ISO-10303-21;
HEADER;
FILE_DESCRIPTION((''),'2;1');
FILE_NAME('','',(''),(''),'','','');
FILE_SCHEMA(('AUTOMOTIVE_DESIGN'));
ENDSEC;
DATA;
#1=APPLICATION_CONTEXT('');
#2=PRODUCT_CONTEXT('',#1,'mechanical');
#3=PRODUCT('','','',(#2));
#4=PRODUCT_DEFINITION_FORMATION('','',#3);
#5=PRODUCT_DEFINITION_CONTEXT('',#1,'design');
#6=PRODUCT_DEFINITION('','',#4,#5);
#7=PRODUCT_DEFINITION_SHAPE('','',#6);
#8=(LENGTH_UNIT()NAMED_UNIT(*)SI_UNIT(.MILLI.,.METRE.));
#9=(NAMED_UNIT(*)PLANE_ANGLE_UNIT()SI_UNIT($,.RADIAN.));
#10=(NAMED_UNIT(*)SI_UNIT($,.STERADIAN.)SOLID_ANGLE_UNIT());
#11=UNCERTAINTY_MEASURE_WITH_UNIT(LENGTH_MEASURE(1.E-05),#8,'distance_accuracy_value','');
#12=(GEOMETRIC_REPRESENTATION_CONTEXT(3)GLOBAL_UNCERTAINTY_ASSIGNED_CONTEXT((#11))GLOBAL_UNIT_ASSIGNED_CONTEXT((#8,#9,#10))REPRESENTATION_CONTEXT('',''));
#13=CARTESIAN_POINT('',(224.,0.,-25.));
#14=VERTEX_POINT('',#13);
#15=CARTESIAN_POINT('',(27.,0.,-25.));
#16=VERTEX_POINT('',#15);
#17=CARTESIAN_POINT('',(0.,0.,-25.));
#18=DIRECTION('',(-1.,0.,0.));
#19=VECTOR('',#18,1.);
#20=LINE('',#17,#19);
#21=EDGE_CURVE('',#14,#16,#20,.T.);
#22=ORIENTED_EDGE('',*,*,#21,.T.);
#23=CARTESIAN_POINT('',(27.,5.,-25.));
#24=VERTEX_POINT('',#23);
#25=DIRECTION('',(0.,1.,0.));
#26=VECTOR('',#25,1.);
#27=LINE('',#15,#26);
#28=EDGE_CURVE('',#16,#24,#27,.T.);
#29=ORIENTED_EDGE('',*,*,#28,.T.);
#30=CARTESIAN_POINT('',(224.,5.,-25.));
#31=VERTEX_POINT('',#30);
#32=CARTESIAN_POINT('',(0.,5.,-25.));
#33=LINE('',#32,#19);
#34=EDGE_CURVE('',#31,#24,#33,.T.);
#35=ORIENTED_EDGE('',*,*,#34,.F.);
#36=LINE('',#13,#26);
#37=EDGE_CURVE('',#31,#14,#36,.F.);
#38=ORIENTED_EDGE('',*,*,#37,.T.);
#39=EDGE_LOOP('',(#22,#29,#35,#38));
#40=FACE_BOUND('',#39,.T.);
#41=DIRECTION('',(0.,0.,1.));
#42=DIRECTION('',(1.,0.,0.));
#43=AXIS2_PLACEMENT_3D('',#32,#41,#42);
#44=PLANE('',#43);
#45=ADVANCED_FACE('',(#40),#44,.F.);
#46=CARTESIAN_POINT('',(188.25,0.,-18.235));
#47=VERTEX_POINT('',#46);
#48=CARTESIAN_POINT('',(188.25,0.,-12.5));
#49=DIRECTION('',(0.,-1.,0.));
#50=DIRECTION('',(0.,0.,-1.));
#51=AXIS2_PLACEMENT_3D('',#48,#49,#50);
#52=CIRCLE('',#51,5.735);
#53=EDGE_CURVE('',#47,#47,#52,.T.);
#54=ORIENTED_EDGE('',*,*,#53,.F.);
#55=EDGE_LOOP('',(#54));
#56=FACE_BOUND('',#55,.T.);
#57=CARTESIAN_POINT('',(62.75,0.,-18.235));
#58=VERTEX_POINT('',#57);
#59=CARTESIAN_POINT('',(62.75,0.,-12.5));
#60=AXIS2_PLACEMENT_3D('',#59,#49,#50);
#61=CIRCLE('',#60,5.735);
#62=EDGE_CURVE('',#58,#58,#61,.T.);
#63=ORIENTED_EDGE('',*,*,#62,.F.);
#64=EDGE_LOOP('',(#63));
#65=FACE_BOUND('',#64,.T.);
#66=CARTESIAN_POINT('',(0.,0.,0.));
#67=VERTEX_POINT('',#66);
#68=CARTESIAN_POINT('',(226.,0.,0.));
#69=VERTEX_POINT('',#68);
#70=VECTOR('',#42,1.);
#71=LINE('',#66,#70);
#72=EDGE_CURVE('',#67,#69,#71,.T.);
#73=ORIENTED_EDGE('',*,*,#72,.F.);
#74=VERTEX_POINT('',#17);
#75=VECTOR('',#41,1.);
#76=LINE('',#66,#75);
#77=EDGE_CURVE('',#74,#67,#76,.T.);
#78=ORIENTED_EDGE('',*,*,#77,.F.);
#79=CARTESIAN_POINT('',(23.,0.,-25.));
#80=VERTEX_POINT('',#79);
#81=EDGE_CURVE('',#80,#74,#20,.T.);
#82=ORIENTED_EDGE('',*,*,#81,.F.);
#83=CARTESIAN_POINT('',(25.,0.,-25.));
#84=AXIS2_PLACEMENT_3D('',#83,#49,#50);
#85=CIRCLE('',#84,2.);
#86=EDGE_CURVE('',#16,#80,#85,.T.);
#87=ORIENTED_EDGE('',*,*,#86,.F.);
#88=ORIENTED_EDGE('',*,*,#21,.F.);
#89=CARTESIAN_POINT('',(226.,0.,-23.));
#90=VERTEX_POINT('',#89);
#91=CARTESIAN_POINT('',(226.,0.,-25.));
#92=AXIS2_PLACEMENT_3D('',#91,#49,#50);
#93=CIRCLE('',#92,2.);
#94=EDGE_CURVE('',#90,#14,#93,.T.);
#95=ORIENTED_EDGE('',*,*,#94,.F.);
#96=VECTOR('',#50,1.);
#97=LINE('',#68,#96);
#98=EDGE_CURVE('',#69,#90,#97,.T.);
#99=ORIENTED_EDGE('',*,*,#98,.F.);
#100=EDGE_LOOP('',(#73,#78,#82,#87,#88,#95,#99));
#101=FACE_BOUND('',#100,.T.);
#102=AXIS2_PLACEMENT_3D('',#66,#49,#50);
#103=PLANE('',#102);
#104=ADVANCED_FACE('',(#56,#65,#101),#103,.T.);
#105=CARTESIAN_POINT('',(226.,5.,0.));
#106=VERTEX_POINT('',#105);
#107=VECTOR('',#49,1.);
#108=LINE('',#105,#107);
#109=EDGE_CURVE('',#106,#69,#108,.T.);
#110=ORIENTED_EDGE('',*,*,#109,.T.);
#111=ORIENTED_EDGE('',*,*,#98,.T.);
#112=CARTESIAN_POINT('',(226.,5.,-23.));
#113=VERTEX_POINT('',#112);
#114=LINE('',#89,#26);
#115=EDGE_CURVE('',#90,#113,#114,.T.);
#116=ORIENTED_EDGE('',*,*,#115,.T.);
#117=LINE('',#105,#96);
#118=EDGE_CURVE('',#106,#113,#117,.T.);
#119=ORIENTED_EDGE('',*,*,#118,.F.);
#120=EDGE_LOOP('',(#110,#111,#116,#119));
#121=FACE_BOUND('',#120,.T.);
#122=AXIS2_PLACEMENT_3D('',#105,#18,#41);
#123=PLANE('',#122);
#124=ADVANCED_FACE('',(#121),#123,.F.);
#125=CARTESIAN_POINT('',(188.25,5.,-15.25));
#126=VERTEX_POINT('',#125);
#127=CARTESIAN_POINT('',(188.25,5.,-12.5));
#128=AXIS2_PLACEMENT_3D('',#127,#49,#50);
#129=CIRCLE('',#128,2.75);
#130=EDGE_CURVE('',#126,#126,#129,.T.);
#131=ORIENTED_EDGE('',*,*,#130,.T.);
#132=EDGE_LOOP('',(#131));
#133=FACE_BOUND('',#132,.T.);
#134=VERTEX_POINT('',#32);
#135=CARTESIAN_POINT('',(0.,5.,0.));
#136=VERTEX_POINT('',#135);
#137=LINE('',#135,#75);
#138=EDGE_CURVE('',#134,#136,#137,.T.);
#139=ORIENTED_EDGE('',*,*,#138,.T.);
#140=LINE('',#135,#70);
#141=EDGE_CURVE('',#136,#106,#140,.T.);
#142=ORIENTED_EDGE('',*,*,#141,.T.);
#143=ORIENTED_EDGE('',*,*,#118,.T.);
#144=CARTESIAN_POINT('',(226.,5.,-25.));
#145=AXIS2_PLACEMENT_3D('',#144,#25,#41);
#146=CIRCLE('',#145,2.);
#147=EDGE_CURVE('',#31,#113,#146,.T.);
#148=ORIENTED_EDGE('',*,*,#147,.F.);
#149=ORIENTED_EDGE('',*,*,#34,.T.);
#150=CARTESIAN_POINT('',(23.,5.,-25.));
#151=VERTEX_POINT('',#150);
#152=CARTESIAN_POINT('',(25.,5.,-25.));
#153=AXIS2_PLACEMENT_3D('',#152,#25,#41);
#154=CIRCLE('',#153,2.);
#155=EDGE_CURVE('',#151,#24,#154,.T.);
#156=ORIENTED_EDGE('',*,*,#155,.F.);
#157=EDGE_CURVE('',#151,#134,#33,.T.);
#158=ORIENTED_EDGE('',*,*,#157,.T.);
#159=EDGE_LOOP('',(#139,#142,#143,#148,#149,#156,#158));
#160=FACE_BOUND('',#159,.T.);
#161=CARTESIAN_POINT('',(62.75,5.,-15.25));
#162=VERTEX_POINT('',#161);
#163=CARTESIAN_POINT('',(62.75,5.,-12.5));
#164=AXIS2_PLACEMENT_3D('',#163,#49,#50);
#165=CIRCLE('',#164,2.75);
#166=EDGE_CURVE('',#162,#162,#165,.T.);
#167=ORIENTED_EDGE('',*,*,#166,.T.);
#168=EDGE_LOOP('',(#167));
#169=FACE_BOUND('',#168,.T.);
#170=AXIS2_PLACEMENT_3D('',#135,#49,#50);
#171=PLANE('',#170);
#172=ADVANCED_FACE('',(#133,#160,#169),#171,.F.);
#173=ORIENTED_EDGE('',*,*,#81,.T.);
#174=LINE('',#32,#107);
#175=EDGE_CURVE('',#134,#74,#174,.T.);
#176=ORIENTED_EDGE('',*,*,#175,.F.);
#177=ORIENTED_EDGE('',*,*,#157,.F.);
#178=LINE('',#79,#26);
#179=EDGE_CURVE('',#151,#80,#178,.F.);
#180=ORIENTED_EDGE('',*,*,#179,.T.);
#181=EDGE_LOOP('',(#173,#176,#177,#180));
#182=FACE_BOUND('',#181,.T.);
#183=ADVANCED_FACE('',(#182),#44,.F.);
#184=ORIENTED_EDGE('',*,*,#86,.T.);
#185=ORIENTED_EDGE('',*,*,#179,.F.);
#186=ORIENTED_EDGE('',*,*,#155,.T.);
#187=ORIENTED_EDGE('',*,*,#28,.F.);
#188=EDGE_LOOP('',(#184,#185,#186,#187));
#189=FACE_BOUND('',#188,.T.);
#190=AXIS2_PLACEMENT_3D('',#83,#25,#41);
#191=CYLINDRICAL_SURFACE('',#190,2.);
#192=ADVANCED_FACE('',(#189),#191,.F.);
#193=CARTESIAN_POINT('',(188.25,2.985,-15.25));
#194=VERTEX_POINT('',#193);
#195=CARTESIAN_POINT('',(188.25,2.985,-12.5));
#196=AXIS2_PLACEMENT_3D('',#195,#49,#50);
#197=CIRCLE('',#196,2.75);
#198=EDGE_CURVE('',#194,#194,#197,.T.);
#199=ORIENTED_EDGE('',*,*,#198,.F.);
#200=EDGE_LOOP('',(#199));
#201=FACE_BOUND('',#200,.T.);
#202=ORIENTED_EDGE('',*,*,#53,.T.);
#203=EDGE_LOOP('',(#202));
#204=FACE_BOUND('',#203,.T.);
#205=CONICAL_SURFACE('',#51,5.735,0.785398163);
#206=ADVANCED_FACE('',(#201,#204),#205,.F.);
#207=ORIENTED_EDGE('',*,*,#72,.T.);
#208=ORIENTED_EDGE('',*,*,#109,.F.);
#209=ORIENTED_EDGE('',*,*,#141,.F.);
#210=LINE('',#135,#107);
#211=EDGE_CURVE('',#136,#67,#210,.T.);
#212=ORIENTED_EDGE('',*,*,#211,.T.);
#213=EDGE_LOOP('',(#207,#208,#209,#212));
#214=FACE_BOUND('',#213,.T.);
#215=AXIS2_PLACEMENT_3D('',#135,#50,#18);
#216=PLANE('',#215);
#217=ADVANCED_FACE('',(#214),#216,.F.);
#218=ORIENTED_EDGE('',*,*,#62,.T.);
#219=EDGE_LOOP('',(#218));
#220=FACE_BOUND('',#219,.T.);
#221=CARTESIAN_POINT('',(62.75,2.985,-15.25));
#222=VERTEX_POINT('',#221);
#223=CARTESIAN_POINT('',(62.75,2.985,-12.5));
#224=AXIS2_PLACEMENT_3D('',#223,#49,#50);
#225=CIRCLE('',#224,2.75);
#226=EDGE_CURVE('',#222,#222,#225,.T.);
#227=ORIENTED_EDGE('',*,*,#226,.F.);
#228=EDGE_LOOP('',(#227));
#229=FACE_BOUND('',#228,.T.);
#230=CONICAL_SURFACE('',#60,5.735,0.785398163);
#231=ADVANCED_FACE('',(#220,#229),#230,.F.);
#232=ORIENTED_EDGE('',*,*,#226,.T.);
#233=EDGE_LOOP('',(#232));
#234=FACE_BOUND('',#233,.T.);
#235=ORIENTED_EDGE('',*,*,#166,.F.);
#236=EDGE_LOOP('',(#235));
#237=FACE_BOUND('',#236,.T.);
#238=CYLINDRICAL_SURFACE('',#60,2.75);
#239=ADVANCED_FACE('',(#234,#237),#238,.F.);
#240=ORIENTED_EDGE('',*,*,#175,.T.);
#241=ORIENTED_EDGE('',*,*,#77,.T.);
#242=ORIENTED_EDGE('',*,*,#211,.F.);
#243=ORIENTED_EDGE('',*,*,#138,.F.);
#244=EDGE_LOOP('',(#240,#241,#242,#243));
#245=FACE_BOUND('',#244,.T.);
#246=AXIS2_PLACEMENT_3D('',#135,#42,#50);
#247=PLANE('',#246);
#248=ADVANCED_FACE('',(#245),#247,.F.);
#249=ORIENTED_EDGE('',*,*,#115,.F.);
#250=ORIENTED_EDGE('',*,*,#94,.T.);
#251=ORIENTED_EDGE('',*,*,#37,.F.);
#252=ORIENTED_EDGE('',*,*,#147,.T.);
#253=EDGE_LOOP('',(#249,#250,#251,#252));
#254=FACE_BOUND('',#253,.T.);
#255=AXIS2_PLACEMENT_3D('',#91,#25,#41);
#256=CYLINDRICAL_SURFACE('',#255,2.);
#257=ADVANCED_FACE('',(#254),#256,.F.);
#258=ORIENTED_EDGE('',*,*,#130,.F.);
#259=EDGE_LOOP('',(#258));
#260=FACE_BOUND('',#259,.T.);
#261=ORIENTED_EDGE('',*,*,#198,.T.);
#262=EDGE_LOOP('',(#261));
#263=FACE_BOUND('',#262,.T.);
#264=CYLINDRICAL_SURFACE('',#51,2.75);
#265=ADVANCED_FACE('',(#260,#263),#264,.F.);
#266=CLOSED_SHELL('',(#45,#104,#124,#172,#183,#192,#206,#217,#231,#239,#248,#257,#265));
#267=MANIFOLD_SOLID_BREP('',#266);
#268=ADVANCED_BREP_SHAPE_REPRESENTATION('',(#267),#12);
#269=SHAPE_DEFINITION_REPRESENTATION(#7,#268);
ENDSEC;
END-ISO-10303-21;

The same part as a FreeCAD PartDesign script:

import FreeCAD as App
import Part
import Sketcher

V = App.Vector
Q = App.Units.Quantity

doc = App.newDocument("Part")
params = doc.addObject("Spreadsheet::Sheet", "Params")
for row, (alias, value) in enumerate([
    ("sketch1_width", "226 mm"),
    ("sketch1_height", "25 mm"),
    ("pad1_length", "5 mm"),
    ("sketch2_diameter", "4 mm"),
    ("pocket1_length", "5 mm"),
    ("sketch3_diameter", "5.5 mm"),
    ("hole_diameter", "5.5 mm"),
    ("hole_depth", "5 mm"),
    ("hole_csink_diameter", "11.47 mm"),
], start=1):
    params.set(f"A{row}", alias)
    params.set(f"B{row}", "=" + value)
    params.setAlias(f"B{row}", alias)

body = doc.addObject("PartDesign::Body", "Body")

sketch1 = body.newObject("Sketcher::SketchObject", "Sketch")
sketch1.AttachmentSupport = (doc.getObject("XZ_Plane"), [""])
sketch1.MapMode = "FlatFace"
sketch1.addGeometry(Part.LineSegment(V(0, -25, 0), V(0, 0, 0)), False)
sketch1.addGeometry(Part.LineSegment(V(0, 0, 0), V(226, 0, 0)), False)
sketch1.addGeometry(Part.LineSegment(V(226, 0, 0), V(226, -25, 0)), False)
sketch1.addGeometry(Part.LineSegment(V(226, -25, 0), V(0, -25, 0)), False)
sketch1.addConstraint(Sketcher.Constraint("Coincident", 0, 2, 1, 1))
sketch1.addConstraint(Sketcher.Constraint("Coincident", 1, 2, 2, 1))
sketch1.addConstraint(Sketcher.Constraint("Coincident", 2, 2, 3, 1))
sketch1.addConstraint(Sketcher.Constraint("Coincident", 3, 2, 0, 1))
sketch1.addConstraint(Sketcher.Constraint("Vertical", 0))
sketch1.addConstraint(Sketcher.Constraint("Horizontal", 1))
sketch1.addConstraint(Sketcher.Constraint("Vertical", 2))
sketch1.addConstraint(Sketcher.Constraint("Horizontal", 3))
sketch1.addConstraint(Sketcher.Constraint("Coincident", 0, 2, -1, 1))
sketch1.addConstraint(Sketcher.Constraint("DistanceX", 1, 1, 1, 2, Q("226 mm")))
sketch1.addConstraint(Sketcher.Constraint("DistanceY", 0, 1, 0, 2, Q("25 mm")))
sketch1.setExpression("Constraints[9]", "Params.sketch1_width")
sketch1.setExpression("Constraints[10]", "Params.sketch1_height")
pad1 = body.newObject("PartDesign::Pad", "Pad")
pad1.Profile = sketch1
pad1.setExpression("Length", "Params.pad1_length")
pad1.Reversed = True

sketch2 = body.newObject("Sketcher::SketchObject", "Sketch001")
sketch2.AttachmentSupport = (doc.getObject("XZ_Plane"), [""])
sketch2.MapMode = "FlatFace"
sketch2.AttachmentOffset = App.Placement(V(0, 0, -5), App.Rotation())
sketch2.addGeometry(Part.Circle(V(25, -25, 0), V(0, 0, 1), 2), False)
sketch2.addGeometry(Part.Circle(V(226, -25, 0), V(0, 0, 1), 2), False)
sketch2.addConstraint(Sketcher.Constraint("Equal", 0, 1))
sketch2.addConstraint(Sketcher.Constraint("Horizontal", 0, 3, 1, 3))
sketch2.addConstraint(Sketcher.Constraint("Diameter", 0, Q("4 mm")))
sketch2.addConstraint(Sketcher.Constraint("DistanceX", -1, 1, 0, 3, Q("25 mm")))
sketch2.addConstraint(Sketcher.Constraint("DistanceY", 0, 3, -1, 1, Q("25 mm")))
sketch2.addConstraint(Sketcher.Constraint("DistanceX", -1, 1, 1, 3, Q("226 mm")))
sketch2.setExpression("Constraints[2]", "Params.sketch2_diameter")
pocket1 = body.newObject("PartDesign::Pocket", "Pocket")
pocket1.Profile = sketch2
pocket1.setExpression("Length", "Params.pocket1_length")
pocket1.Reversed = True

sketch3 = body.newObject("Sketcher::SketchObject", "Sketch002")
sketch3.AttachmentSupport = (doc.getObject("XZ_Plane"), [""])
sketch3.MapMode = "FlatFace"
sketch3.addGeometry(Part.Circle(V(62.75, -12.5, 0), V(0, 0, 1), 2.75), False)
sketch3.addGeometry(Part.Circle(V(188.25, -12.5, 0), V(0, 0, 1), 2.75), False)
sketch3.addConstraint(Sketcher.Constraint("Equal", 0, 1))
sketch3.addConstraint(Sketcher.Constraint("Horizontal", 0, 3, 1, 3))
sketch3.addConstraint(Sketcher.Constraint("Diameter", 0, Q("5.5 mm")))
sketch3.addConstraint(Sketcher.Constraint("DistanceY", 0, 3, -1, 1, Q("12.5 mm")))
sketch3.addConstraint(Sketcher.Constraint("DistanceX", 0, 3, 1, 3, Q("125.5 mm")))
sketch3.addConstraint(Sketcher.Constraint("DistanceX", -1, 1, 0, 3, Q("62.75 mm")))
sketch3.setExpression("Constraints[2]", "Params.sketch3_diameter")
doc.recompute()
hole = body.newObject("PartDesign::Hole", "Hole")
hole.Profile = sketch3
hole.ThreadType = "None"
hole.setExpression("Diameter", "Params.hole_diameter")
hole.DepthType = "Dimension"
hole.setExpression("Depth", "Params.hole_depth")
hole.DrillPoint = "Angled"
hole.DrillPointAngle = 118
hole.HoleCutType = "Countersink"
hole.setExpression("HoleCutDiameter", "Params.hole_csink_diameter")
hole.HoleCutCountersinkAngle = 90

doc.recompute()
